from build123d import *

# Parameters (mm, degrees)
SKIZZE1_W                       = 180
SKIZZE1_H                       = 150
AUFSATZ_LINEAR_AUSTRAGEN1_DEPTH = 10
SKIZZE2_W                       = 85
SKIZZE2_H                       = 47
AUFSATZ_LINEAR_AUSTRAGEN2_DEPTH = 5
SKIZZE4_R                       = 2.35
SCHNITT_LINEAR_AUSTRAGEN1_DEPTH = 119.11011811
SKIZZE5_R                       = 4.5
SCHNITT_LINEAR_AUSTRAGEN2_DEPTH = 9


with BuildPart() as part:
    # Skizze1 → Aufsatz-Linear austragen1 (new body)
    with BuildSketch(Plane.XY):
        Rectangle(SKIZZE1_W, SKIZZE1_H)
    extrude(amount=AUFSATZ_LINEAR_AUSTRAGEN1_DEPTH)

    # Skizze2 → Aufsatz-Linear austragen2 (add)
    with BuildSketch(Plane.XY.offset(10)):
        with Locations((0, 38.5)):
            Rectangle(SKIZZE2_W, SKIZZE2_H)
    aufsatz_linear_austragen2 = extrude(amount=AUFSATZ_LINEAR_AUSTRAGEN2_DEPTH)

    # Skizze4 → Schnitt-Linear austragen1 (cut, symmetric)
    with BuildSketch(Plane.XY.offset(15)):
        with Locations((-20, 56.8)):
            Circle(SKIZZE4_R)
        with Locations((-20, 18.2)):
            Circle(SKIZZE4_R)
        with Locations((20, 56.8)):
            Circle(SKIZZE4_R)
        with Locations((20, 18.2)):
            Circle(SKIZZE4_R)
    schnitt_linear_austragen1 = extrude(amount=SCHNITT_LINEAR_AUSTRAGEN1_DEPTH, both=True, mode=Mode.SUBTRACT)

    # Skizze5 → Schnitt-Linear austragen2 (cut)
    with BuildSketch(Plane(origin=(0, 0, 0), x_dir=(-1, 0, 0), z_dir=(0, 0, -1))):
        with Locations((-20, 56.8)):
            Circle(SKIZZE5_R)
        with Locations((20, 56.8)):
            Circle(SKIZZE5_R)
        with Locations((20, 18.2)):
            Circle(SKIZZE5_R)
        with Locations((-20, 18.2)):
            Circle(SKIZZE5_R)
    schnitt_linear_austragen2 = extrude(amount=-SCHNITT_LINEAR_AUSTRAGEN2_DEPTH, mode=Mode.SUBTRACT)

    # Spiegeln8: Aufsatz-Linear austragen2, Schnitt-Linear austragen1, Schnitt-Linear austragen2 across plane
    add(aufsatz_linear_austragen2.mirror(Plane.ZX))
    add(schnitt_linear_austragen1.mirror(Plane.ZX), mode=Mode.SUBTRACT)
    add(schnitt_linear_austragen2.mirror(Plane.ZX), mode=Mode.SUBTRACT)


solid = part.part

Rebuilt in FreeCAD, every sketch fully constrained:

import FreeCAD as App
import Part
import Sketcher
from FreeCAD import Vector


def add_polygon(sketch, points):
    """Adds a closed chain of lines whose ends are joined by coincident constraints."""
    first, n = sketch.GeometryCount, len(points)
    for a, b in zip(points, points[1:] + points[:1]):
        sketch.addGeometry(Part.LineSegment(App.Vector(*a, 0), App.Vector(*b, 0)), False)
    for i in range(n):
        sketch.addConstraint(Sketcher.Constraint("Coincident", first + i, 2, first + (i + 1) % n, 1))

doc = App.newDocument("Part")
body = doc.addObject("PartDesign::Body", "Body")

# Sketch on XY plane
sketch1 = body.newObject("Sketcher::SketchObject", "Sketch")
sketch1.AttachmentSupport = (doc.getObject("XY_Plane"), [""])
sketch1.MapMode = "FlatFace"
add_polygon(sketch1, [(-90, 75), (-90, -75), (90, -75), (90, 75)])  # lines 0-3
sketch1.addConstraint([
    Sketcher.Constraint("Vertical", 0),
    Sketcher.Constraint("Horizontal", 1),
    Sketcher.Constraint("Vertical", 2),
    Sketcher.Constraint("Horizontal", 3),
    Sketcher.Constraint("Symmetric", 0, 2, 2, 2, -1, 1),
    Sketcher.Constraint("DistanceX", 1, 1, 1, 2, 180.0),
    Sketcher.Constraint("DistanceY", 0, 2, 0, 1, 150.0),
])
pad1 = body.newObject("PartDesign::Pad", "Pad")
pad1.Profile = sketch1
pad1.Length = 10

# Sketch on XY plane
sketch2 = body.newObject("Sketcher::SketchObject", "Sketch001")
sketch2.AttachmentSupport = (doc.getObject("XY_Plane"), [""])
sketch2.MapMode = "FlatFace"
sketch2.AttachmentOffset = App.Placement(Vector(0, 0, 10), App.Rotation())
add_polygon(sketch2, [(-42, 62), (-42, 15), (42, 15), (42, 62)])  # lines 0-3
sketch2.addConstraint([
    Sketcher.Constraint("Vertical", 0),
    Sketcher.Constraint("Horizontal", 1),
    Sketcher.Constraint("Vertical", 2),
    Sketcher.Constraint("Horizontal", 3),
    Sketcher.Constraint("DistanceX", 1, 1, 1, 2, 85.0),
    Sketcher.Constraint("DistanceY", 0, 2, 0, 1, 47.0),
    Sketcher.Constraint("DistanceY", -1, 1, 0, 2, 15.0),
    Sketcher.Constraint("DistanceX", 0, 2, -1, 1, 42.5),
])
pad2 = body.newObject("PartDesign::Pad", "Pad001")
pad2.Profile = sketch2
pad2.Length = 5

# Sketch on XY plane
sketch3 = body.newObject("Sketcher::SketchObject", "Sketch002")
sketch3.AttachmentSupport = (doc.getObject("XY_Plane"), [""])
sketch3.MapMode = "FlatFace"
sketch3.AttachmentOffset = App.Placement(Vector(0, 0, 15), App.Rotation())
sketch3.addGeometry([
    Part.Circle(Vector(-20, 56.8, 0), Vector(0, 0, 1), 2.4),
    Part.Circle(Vector(-20, 18.2, 0), Vector(0, 0, 1), 2.4),
    Part.Circle(Vector(20, 56.8, 0), Vector(0, 0, 1), 2.4),
    Part.Circle(Vector(20, 18.2, 0), Vector(0, 0, 1), 2.4),
], False)
sketch3.addConstraint([
    Sketcher.Constraint("Equal", 0, 1),
    Sketcher.Constraint("Equal", 1, 2),
    Sketcher.Constraint("Equal", 2, 3),
    Sketcher.Constraint("Symmetric", 0, 3, 2, 3, -2),
    Sketcher.Constraint("Symmetric", 1, 3, 3, 3, -2),
    Sketcher.Constraint("Vertical", 0, 3, 1, 3),
    Sketcher.Constraint("Diameter", 0, 4.7),
    Sketcher.Constraint("DistanceX", 0, 3, -1, 1, 20.0),
    Sketcher.Constraint("DistanceY", -1, 1, 0, 3, 56.8),
    Sketcher.Constraint("DistanceY", -1, 1, 1, 3, 18.2),
])
pocket1 = body.newObject("PartDesign::Pocket", "Pocket")
pocket1.Profile = sketch3
pocket1.Length = 238.220236
pocket1.Midplane = True

# Sketch on XY plane
sketch4 = body.newObject("Sketcher::SketchObject", "Sketch003")
sketch4.AttachmentSupport = (doc.getObject("XY_Plane"), [""])
sketch4.MapMode = "FlatFace"
sketch4.addGeometry([
    Part.Circle(Vector(20, 56.8, 0), Vector(0, 0, 1), 4.5),
    Part.Circle(Vector(-20, 56.8, 0), Vector(0, 0, 1), 4.5),
    Part.Circle(Vector(-20, 18.2, 0), Vector(0, 0, 1), 4.5),
    Part.Circle(Vector(20, 18.2, 0), Vector(0, 0, 1), 4.5),
], False)
sketch4.addConstraint([
    Sketcher.Constraint("Equal", 0, 1),
    Sketcher.Constraint("Equal", 1, 2),
    Sketcher.Constraint("Equal", 2, 3),
    Sketcher.Constraint("Symmetric", 0, 3, 1, 3, -2),
    Sketcher.Constraint("Symmetric", 2, 3, 3, 3, -2),
    Sketcher.Constraint("Vertical", 1, 3, 2, 3),
    Sketcher.Constraint("Diameter", 0, 9.0),
    Sketcher.Constraint("DistanceX", -1, 1, 0, 3, 20.0),
    Sketcher.Constraint("DistanceY", -1, 1, 0, 3, 56.8),
    Sketcher.Constraint("DistanceY", -1, 1, 2, 3, 18.2),
])
pocket2 = body.newObject("PartDesign::Pocket", "Pocket001")
pocket2.Profile = sketch4
pocket2.Length = 9
pocket2.Reversed = True
doc.recompute()

mirrored = body.newObject("PartDesign::Mirrored", "Mirrored")
mirrored.Originals = [pad2, pocket1, pocket2]
mirrored.MirrorPlane = (doc.getObject("XZ_Plane"), [""])
body.Tip = mirrored

doc.recompute()
